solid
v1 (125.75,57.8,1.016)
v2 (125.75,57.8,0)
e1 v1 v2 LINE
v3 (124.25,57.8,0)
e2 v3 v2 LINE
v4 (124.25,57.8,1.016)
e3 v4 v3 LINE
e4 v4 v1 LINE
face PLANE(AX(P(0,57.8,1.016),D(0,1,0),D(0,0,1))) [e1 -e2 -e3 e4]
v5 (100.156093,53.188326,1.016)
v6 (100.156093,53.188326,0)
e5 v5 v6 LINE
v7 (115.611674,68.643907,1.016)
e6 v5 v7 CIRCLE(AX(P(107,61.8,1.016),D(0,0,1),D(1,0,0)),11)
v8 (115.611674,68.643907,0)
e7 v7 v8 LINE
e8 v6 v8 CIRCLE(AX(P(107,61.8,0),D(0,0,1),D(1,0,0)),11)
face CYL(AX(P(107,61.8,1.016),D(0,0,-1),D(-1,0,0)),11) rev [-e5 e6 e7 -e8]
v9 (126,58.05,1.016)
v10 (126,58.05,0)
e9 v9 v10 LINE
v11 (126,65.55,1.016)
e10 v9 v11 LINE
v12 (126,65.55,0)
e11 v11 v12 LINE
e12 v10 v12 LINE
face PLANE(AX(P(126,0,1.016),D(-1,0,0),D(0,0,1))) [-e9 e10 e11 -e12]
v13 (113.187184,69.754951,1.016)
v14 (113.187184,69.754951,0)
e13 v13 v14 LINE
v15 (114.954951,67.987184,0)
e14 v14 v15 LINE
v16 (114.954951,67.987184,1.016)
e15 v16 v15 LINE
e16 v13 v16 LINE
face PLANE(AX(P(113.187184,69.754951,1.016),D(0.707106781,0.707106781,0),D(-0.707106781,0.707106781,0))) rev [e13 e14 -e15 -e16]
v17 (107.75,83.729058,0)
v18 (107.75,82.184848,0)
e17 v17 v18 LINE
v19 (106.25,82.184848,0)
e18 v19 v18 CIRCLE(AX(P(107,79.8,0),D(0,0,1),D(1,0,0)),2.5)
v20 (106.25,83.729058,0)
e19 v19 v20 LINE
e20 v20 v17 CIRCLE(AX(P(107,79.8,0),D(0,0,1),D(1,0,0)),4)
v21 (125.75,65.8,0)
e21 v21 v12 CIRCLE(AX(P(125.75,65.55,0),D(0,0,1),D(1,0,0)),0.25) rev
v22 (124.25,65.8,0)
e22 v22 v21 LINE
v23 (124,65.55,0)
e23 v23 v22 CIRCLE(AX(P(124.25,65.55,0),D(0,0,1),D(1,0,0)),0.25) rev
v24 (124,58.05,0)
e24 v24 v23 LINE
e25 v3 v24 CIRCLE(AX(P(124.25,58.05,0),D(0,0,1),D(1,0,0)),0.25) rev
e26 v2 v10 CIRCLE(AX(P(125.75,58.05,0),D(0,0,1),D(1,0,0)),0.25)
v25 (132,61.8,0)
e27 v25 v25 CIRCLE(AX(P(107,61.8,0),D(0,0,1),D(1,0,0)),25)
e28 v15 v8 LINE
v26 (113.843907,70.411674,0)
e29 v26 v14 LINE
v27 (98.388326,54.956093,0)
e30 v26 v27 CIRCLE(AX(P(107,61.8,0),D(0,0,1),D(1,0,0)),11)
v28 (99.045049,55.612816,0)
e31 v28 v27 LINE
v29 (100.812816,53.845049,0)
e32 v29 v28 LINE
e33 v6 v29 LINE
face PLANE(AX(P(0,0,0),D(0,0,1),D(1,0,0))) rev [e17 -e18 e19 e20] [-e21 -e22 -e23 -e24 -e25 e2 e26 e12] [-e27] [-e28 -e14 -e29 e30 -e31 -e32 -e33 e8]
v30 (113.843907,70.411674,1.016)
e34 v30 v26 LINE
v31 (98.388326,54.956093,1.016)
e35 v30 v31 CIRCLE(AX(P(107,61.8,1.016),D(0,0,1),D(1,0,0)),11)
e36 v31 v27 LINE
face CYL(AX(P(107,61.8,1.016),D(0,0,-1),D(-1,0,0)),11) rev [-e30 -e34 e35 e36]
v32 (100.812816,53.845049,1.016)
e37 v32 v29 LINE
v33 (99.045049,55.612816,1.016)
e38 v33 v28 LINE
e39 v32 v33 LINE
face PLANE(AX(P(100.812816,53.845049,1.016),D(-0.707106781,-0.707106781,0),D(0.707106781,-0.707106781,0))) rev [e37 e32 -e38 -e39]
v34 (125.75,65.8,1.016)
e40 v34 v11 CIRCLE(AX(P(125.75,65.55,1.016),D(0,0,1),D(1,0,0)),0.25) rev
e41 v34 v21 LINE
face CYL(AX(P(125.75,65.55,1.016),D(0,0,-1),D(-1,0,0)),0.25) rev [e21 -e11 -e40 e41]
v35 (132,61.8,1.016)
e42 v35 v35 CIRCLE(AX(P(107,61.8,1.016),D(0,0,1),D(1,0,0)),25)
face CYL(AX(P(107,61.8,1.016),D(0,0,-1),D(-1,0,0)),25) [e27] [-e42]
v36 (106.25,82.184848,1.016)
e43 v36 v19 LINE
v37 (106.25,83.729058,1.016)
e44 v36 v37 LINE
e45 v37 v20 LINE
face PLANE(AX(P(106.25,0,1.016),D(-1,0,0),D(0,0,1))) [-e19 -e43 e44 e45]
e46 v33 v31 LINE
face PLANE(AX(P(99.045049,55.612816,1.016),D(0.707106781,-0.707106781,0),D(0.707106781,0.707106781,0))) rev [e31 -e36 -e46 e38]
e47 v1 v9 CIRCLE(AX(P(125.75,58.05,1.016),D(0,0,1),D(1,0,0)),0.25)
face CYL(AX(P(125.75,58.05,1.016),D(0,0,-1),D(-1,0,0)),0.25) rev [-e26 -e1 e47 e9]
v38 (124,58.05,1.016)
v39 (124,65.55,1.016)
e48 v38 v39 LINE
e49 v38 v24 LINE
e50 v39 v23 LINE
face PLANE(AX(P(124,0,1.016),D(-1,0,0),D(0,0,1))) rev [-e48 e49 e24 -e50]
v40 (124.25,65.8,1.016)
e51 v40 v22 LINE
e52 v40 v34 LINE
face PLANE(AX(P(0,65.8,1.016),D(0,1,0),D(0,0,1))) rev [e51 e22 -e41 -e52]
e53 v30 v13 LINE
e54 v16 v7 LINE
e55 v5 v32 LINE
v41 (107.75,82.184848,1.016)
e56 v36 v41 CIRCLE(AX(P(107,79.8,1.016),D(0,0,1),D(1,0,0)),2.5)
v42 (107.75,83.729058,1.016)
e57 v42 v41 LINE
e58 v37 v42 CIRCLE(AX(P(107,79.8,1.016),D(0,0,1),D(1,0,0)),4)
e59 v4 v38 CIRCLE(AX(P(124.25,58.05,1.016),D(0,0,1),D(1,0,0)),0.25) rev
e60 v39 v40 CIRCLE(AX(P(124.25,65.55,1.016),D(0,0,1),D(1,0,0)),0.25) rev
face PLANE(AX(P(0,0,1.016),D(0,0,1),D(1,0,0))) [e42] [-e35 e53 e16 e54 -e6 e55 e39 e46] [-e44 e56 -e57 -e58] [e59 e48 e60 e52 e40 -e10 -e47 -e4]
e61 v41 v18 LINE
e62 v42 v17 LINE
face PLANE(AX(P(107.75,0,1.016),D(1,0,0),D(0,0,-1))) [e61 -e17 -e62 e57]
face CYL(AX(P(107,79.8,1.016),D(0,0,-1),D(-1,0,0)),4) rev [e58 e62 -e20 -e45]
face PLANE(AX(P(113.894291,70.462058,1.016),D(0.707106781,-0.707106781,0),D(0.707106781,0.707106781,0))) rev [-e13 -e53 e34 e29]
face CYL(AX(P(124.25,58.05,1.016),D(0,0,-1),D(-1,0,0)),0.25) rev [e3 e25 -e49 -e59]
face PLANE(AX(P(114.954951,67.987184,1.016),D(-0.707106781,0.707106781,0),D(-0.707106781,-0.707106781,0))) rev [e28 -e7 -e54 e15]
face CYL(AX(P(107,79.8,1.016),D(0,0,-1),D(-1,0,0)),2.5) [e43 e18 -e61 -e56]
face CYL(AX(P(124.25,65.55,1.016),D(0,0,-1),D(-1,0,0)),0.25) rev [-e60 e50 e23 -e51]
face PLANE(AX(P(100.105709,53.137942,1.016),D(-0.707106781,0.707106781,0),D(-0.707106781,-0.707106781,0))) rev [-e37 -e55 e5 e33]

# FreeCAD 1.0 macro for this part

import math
import FreeCAD as App
import Part
import Sketcher
Q = App.Units.Quantity

doc = App.newDocument("Part")
body = doc.addObject("PartDesign::Body", "Body")

# Sketch on XY plane
sketch1 = body.newObject("Sketcher::SketchObject", "Sketch")
sketch1.AttachmentSupport = (doc.getObject("XY_Plane"), [""])
sketch1.MapMode = "FlatFace"
sketch1.addGeometry([
    Part.Circle(App.Vector(107, 61.8, 0), App.Vector(0, 0, 1), 25),  # 0
    Part.ArcOfCircle(Part.Circle(App.Vector(107, 61.8, 0), App.Vector(0, 0, 1), 11), math.radians(52), math.radians(218)),  # 1
    Part.LineSegment(App.Vector(113.8, 70.4, 0), App.Vector(113.2, 69.8, 0)),  # 2
    Part.LineSegment(App.Vector(113.2, 69.8, 0), App.Vector(115, 68, 0)),  # 3
    Part.LineSegment(App.Vector(115, 68, 0), App.Vector(115.6, 68.6, 0)),  # 4
    Part.ArcOfCircle(Part.Circle(App.Vector(107, 61.8, 0), App.Vector(0, 0, 1), 11), math.radians(-128), math.radians(38)),  # 5
    Part.LineSegment(App.Vector(100.2, 53.2, 0), App.Vector(100.8, 53.8, 0)),  # 6
    Part.LineSegment(App.Vector(100.8, 53.8, 0), App.Vector(99, 55.6, 0)),  # 7
    Part.LineSegment(App.Vector(99, 55.6, 0), App.Vector(98.4, 55, 0)),  # 8
], False)
sketch1.addConstraint([
    Sketcher.Constraint("Coincident", 1, 1, 2, 1),
    Sketcher.Constraint("Coincident", 2, 2, 3, 1),
    Sketcher.Constraint("Coincident", 3, 2, 4, 1),
    Sketcher.Constraint("Coincident", 4, 2, 5, 2),
    Sketcher.Constraint("Coincident", 5, 1, 6, 1),
    Sketcher.Constraint("Coincident", 6, 2, 7, 1),
    Sketcher.Constraint("Coincident", 7, 2, 8, 1),
    Sketcher.Constraint("Coincident", 8, 2, 1, 2),
    Sketcher.Constraint("Coincident", 1, 3, 0, 3),
    Sketcher.Constraint("Coincident", 5, 3, 0, 3),
    Sketcher.Constraint("Equal", 1, 5),
    Sketcher.Constraint("Perpendicular", 2, 3),
    Sketcher.Constraint("Perpendicular", 3, 4),
    Sketcher.Constraint("Parallel", 4, 6),
    Sketcher.Constraint("Perpendicular", 6, 7),
    Sketcher.Constraint("Perpendicular", 7, 8),
    Sketcher.Constraint("Equal", 2, 4),
    Sketcher.Constraint("Equal", 4, 6),
    Sketcher.Constraint("Equal", 3, 7),
    Sketcher.Constraint("Equal", 6, 8),
    Sketcher.Constraint("Diameter", 0, 50.0),
    Sketcher.Constraint("Radius", 1, 11.0),
    Sketcher.Constraint("Angle", 2, Q("-135 deg")),
    Sketcher.Constraint("DistanceX", -1, 1, 0, 3, 107.0),
    Sketcher.Constraint("Distance", 3, 2.5),
    Sketcher.Constraint("DistanceY", -1, 1, 0, 3, 61.8),
    Sketcher.Constraint("DistanceY", -1, 1, 2, 2, 69.754951),
])
pad1 = body.newObject("PartDesign::Pad", "Pad")
pad1.Profile = sketch1
pad1.Length = 1.016

# Sketch on XY plane
sketch2 = body.newObject("Sketcher::SketchObject", "Sketch001")
sketch2.AttachmentSupport = (doc.getObject("XY_Plane"), [""])
sketch2.MapMode = "FlatFace"
sketch2.addGeometry([
    Part.ArcOfCircle(Part.Circle(App.Vector(107, 79.8, 0), App.Vector(0, 0, 1), 2.5), math.radians(107), math.radians(433)),  # 0
    Part.LineSegment(App.Vector(106.25, 82.18, 0), App.Vector(106.25, 83.73, 0)),  # 1
    Part.ArcOfCircle(Part.Circle(App.Vector(107, 79.8, 0), App.Vector(0, 0, 1), 4), math.radians(101), math.radians(439)),  # 2
    Part.LineSegment(App.Vector(107.75, 83.73, 0), App.Vector(107.75, 82.18, 0)),  # 3
    Part.ArcOfCircle(Part.Circle(App.Vector(124.25, 65.55, 0), App.Vector(0, 0, 1), 0.25), math.radians(90), math.radians(180)),  # 4
    Part.LineSegment(App.Vector(124, 65.55, 0), App.Vector(124, 58.05, 0)),  # 5
    Part.ArcOfCircle(Part.Circle(App.Vector(124.25, 58.05, 0), App.Vector(0, 0, 1), 0.25), math.radians(180), math.radians(270)),  # 6
    Part.LineSegment(App.Vector(124.25, 57.8, 0), App.Vector(125.75, 57.8, 0)),  # 7
    Part.ArcOfCircle(Part.Circle(App.Vector(125.75, 58.05, 0), App.Vector(0, 0, 1), 0.25), math.radians(-90), math.radians(0)),  # 8
    Part.LineSegment(App.Vector(126, 58.05, 0), App.Vector(126, 65.55, 0)),  # 9
    Part.ArcOfCircle(Part.Circle(App.Vector(125.75, 65.55, 0), App.Vector(0, 0, 1), 0.25), math.radians(0), math.radians(90)),  # 10
    Part.LineSegment(App.Vector(125.75, 65.8, 0), App.Vector(124.25, 65.8, 0)),  # 11
], False)
sketch2.addConstraint([
    Sketcher.Constraint("Coincident", 0, 1, 1, 1),
    Sketcher.Constraint("Coincident", 1, 2, 2, 1),
    Sketcher.Constraint("Coincident", 2, 2, 3, 1),
    Sketcher.Constraint("Coincident", 3, 2, 0, 2),
    Sketcher.Constraint("Tangent", 4, 2, 5, 1),
    Sketcher.Constraint("Tangent", 5, 2, 6, 1),
    Sketcher.Constraint("Tangent", 6, 2, 7, 1),
    Sketcher.Constraint("Tangent", 7, 2, 8, 1),
    Sketcher.Constraint("Tangent", 8, 2, 9, 1),
    Sketcher.Constraint("Tangent", 9, 2, 10, 1),
    Sketcher.Constraint("Tangent", 10, 2, 11, 1),
    Sketcher.Constraint("Tangent", 11, 2, 4, 1),
    Sketcher.Constraint("Vertical", 1),
    Sketcher.Constraint("Vertical", 3),
    Sketcher.Constraint("Vertical", 5),
    Sketcher.Constraint("Horizontal", 7),
    Sketcher.Constraint("Vertical", 9),
    Sketcher.Constraint("Horizontal", 11),
    Sketcher.Constraint("Coincident", 2, 3, 0, 3),
    Sketcher.Constraint("Equal", 4, 6),
    Sketcher.Constraint("Equal", 6, 8),
    Sketcher.Constraint("Equal", 8, 10),
    Sketcher.Constraint("Horizontal", 1, 2, 2, 2),
    Sketcher.Constraint("Radius", 2, 4.0),
    Sketcher.Constraint("Radius", 0, 2.5),
    Sketcher.Constraint("Radius", 4, 0.25),
    Sketcher.Constraint("DistanceX", 7, 1, 7, 2, 1.5),
    Sketcher.Constraint("DistanceY", 5, 2, 5, 1, 7.5),
    Sketcher.Constraint("DistanceX", -1, 1, 0, 3, 107.0),
    Sketcher.Constraint("DistanceX", -1, 1, 4, 2, 124.0),
    Sketcher.Constraint("DistanceX", 0, 1, 4, 3, 18.0),
    Sketcher.Constraint("DistanceY", -1, 1, 0, 3, 79.8),
    Sketcher.Constraint("DistanceY", -1, 1, 6, 2, 57.8),
])
pocket1 = body.newObject("PartDesign::Pocket", "Pocket")
pocket1.Profile = sketch2
pocket1.Type = "ThroughAll"
pocket1.Reversed = True

doc.recompute()
